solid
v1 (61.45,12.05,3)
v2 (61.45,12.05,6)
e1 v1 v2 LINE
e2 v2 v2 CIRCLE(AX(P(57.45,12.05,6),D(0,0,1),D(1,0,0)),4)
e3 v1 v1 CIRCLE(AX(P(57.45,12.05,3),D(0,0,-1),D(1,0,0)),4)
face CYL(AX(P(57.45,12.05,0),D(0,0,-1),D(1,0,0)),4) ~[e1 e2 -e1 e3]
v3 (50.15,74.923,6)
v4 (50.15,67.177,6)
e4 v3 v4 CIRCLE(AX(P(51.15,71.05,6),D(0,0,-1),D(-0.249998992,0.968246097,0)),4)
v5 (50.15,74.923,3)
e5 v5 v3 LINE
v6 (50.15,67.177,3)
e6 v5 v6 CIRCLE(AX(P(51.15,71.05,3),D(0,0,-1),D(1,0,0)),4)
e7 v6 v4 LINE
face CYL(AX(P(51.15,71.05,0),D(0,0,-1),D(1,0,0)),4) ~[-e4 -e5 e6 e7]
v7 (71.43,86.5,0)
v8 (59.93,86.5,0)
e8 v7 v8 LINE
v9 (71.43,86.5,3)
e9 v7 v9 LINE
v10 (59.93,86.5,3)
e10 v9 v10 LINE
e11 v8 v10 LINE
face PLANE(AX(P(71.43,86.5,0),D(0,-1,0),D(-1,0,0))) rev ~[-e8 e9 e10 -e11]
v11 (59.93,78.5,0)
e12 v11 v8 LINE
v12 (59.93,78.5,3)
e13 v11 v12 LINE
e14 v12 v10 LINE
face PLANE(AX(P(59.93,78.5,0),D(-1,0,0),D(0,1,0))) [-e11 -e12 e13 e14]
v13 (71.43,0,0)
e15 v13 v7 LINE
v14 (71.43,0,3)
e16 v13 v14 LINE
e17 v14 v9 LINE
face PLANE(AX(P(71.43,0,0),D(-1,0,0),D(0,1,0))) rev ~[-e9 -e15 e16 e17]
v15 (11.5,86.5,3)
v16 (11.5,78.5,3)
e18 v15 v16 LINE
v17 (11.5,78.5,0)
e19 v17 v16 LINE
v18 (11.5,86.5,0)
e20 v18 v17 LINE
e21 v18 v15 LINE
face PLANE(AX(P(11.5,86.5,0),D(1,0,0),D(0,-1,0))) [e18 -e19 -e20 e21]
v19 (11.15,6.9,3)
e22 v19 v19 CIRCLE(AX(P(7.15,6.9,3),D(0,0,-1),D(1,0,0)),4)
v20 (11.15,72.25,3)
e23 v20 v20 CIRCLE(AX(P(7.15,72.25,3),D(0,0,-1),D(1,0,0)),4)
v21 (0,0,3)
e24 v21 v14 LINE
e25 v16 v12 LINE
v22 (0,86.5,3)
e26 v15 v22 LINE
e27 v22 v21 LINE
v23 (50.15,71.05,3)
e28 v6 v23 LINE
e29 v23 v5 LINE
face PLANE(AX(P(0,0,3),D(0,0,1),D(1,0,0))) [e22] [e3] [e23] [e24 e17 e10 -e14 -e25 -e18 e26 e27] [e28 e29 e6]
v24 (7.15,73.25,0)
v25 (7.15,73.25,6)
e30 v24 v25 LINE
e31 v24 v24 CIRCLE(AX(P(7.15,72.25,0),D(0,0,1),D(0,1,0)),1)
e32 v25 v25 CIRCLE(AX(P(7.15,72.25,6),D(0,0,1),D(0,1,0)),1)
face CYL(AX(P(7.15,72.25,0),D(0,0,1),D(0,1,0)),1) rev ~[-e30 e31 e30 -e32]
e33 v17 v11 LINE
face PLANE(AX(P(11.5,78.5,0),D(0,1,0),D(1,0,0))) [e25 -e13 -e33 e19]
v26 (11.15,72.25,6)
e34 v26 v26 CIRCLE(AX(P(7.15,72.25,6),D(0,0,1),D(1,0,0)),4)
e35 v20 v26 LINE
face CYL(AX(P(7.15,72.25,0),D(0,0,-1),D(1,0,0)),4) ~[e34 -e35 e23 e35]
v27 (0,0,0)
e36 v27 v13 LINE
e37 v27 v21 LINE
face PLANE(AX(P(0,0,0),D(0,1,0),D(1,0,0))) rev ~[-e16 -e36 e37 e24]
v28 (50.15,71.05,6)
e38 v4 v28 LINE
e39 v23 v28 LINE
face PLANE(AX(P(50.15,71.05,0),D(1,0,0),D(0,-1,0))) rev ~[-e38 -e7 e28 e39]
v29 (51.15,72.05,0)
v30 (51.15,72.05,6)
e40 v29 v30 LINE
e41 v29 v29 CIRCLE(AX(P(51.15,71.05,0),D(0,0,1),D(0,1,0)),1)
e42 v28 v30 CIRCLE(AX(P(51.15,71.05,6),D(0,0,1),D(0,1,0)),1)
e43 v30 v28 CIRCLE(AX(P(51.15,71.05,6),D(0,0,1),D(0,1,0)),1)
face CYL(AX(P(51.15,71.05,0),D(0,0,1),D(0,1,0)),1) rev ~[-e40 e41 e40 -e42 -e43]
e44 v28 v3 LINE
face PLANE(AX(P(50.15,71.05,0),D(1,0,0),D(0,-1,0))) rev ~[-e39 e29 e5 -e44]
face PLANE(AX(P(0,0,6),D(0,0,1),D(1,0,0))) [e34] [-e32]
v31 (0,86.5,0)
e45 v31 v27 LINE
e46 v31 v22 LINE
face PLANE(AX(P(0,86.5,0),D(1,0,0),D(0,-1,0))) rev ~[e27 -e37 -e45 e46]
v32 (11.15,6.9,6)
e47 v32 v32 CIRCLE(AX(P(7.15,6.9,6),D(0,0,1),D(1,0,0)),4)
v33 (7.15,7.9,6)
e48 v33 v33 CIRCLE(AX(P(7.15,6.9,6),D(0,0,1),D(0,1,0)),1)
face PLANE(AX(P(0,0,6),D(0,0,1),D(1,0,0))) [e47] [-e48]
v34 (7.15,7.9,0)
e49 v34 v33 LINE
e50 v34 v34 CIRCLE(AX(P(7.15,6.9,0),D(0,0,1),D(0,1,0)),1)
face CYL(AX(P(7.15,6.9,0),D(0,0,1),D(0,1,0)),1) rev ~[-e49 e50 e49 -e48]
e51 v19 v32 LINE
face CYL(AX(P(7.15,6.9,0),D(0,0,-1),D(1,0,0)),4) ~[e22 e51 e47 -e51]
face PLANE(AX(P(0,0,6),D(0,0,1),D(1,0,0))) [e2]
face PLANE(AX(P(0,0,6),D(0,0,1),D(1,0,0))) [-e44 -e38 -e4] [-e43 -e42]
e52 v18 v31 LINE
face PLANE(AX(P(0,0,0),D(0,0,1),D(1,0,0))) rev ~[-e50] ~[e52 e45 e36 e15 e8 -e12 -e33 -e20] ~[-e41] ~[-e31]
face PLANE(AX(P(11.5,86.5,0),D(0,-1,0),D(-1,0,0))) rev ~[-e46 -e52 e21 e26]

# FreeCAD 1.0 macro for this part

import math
import FreeCAD as App
import Part
import Sketcher
Q = App.Units.Quantity


def add_polygon(sketch, points):
    """Adds a closed chain of lines whose ends are joined by coincident constraints."""
    first, n = sketch.GeometryCount, len(points)
    for a, b in zip(points, points[1:] + points[:1]):
        sketch.addGeometry(Part.LineSegment(App.Vector(*a, 0), App.Vector(*b, 0)), False)
    for i in range(n):
        sketch.addConstraint(Sketcher.Constraint("Coincident", first + i, 2, first + (i + 1) % n, 1))

doc = App.newDocument("Part")
body = doc.addObject("PartDesign::Body", "Body")

# Sketch on XY plane
sketch1 = body.newObject("Sketcher::SketchObject", "Sketch")
sketch1.AttachmentSupport = (doc.getObject("XY_Plane"), [""])
sketch1.MapMode = "FlatFace"
add_polygon(sketch1, [(0, 86), (0, 0), (71, 0), (71, 86), (60, 86), (60, 78), (12, 78), (12, 86)])  # lines 0-7
sketch1.addConstraint([
    Sketcher.Constraint("Vertical", 0),
    Sketcher.Constraint("Horizontal", 1),
    Sketcher.Constraint("Vertical", 2),
    Sketcher.Constraint("Horizontal", 3),
    Sketcher.Constraint("Vertical", 4),
    Sketcher.Constraint("Horizontal", 5),
    Sketcher.Constraint("Vertical", 6),
    Sketcher.Constraint("Horizontal", 7),
    Sketcher.Constraint("Coincident", 0, 2, -1, 1),
    Sketcher.Constraint("Horizontal", 3, 2, 6, 2),
    Sketcher.Constraint("Equal", 3, 7),
    Sketcher.Constraint("DistanceY", 4, 2, 4, 1, Q("8 mm")),
    Sketcher.Constraint("DistanceY", 0, 2, 0, 1, Q("86.5 mm")),
    Sketcher.Constraint("DistanceX", 1, 1, 1, 2, Q("71.43 mm")),
    Sketcher.Constraint("DistanceX", 5, 2, 5, 1, Q("48.43 mm")),
])
pad1 = body.newObject("PartDesign::Pad", "Pad")
pad1.Profile = sketch1
pad1.Length = 3

# Sketch on XY plane
sketch2 = body.newObject("Sketcher::SketchObject", "Sketch001")
sketch2.AttachmentSupport = (doc.getObject("XY_Plane"), [""])
sketch2.MapMode = "FlatFace"
sketch2.addGeometry([
    Part.Circle(App.Vector(7.2, 72.2, 0), App.Vector(0, 0, 1), 4),  # 0
    Part.ArcOfCircle(Part.Circle(App.Vector(51.1, 71, 0), App.Vector(0, 0, 1), 4), math.radians(-104), math.radians(104)),  # 1
    Part.LineSegment(App.Vector(50.1, 67.2, 0), App.Vector(50.1, 74.9, 0)),  # 2
    Part.Circle(App.Vector(7.2, 6.9, 0), App.Vector(0, 0, 1), 4),  # 3
    Part.Circle(App.Vector(57.5, 12.1, 0), App.Vector(0, 0, 1), 4),  # 4
], False)
sketch2.addConstraint([
    Sketcher.Constraint("Coincident", 1, 1, 2, 1),
    Sketcher.Constraint("Coincident", 2, 2, 1, 2),
    Sketcher.Constraint("Vertical", 2),
    Sketcher.Constraint("Equal", 0, 1),
    Sketcher.Constraint("Equal", 1, 3),
    Sketcher.Constraint("Equal", 3, 4),
    Sketcher.Constraint("Vertical", 0, 3, 3, 3),
    Sketcher.Constraint("Diameter", 0, Q("8 mm")),
    Sketcher.Constraint("DistanceX", 0, 3, 1, 3, Q("44 mm")),
    Sketcher.Constraint("DistanceY", 4, 3, 1, 3, Q("59 mm")),
    Sketcher.Constraint("DistanceX", 1, 1, 1, 3, Q("1 mm")),
    Sketcher.Constraint("DistanceY", -1, 1, 3, 3, Q("6.9 mm")),
    Sketcher.Constraint("DistanceY", 1, 3, 0, 3, Q("1.2 mm")),
    Sketcher.Constraint("DistanceX", 3, 3, 4, 3, Q("50.3 mm")),
    Sketcher.Constraint("DistanceX", -1, 1, 0, 3, Q("7.15 mm")),
    Sketcher.Constraint("DistanceY", -1, 1, 0, 3, Q("72.25 mm")),
])
pad2 = body.newObject("PartDesign::Pad", "Pad001")
pad2.Profile = sketch2
pad2.Length = 6

# Sketch on XY plane
sketch3 = body.newObject("Sketcher::SketchObject", "Sketch002")
sketch3.AttachmentSupport = (doc.getObject("XY_Plane"), [""])
sketch3.MapMode = "FlatFace"
sketch3.addGeometry([
    Part.Circle(App.Vector(51.1, 71, 0), App.Vector(0, 0, 1), 1),
    Part.Circle(App.Vector(7.2, 72.2, 0), App.Vector(0, 0, 1), 1),
    Part.Circle(App.Vector(7.2, 6.9, 0), App.Vector(0, 0, 1), 1),
], False)
sketch3.addConstraint([
    Sketcher.Constraint("Equal", 0, 1),
    Sketcher.Constraint("Equal", 1, 2),
    Sketcher.Constraint("Vertical", 1, 3, 2, 3),
    Sketcher.Constraint("Diameter", 0, Q("2 mm")),
    Sketcher.Constraint("DistanceX", 1, 3, 0, 3, Q("44 mm")),
    Sketcher.Constraint("DistanceY", -1, 1, 2, 3, Q("6.9 mm")),
    Sketcher.Constraint("DistanceY", 0, 3, 1, 3, Q("1.2 mm")),
    Sketcher.Constraint("DistanceX", -1, 1, 0, 3, Q("51.15 mm")),
    Sketcher.Constraint("DistanceY", -1, 1, 0, 3, Q("71.05 mm")),
])
doc.recompute()
hole = body.newObject("PartDesign::Hole", "Hole")
hole.Profile = sketch3
hole.ThreadType = "None"
hole.Diameter = 2
hole.DepthType = "ThroughAll"
hole.Reversed = True

doc.recompute()
